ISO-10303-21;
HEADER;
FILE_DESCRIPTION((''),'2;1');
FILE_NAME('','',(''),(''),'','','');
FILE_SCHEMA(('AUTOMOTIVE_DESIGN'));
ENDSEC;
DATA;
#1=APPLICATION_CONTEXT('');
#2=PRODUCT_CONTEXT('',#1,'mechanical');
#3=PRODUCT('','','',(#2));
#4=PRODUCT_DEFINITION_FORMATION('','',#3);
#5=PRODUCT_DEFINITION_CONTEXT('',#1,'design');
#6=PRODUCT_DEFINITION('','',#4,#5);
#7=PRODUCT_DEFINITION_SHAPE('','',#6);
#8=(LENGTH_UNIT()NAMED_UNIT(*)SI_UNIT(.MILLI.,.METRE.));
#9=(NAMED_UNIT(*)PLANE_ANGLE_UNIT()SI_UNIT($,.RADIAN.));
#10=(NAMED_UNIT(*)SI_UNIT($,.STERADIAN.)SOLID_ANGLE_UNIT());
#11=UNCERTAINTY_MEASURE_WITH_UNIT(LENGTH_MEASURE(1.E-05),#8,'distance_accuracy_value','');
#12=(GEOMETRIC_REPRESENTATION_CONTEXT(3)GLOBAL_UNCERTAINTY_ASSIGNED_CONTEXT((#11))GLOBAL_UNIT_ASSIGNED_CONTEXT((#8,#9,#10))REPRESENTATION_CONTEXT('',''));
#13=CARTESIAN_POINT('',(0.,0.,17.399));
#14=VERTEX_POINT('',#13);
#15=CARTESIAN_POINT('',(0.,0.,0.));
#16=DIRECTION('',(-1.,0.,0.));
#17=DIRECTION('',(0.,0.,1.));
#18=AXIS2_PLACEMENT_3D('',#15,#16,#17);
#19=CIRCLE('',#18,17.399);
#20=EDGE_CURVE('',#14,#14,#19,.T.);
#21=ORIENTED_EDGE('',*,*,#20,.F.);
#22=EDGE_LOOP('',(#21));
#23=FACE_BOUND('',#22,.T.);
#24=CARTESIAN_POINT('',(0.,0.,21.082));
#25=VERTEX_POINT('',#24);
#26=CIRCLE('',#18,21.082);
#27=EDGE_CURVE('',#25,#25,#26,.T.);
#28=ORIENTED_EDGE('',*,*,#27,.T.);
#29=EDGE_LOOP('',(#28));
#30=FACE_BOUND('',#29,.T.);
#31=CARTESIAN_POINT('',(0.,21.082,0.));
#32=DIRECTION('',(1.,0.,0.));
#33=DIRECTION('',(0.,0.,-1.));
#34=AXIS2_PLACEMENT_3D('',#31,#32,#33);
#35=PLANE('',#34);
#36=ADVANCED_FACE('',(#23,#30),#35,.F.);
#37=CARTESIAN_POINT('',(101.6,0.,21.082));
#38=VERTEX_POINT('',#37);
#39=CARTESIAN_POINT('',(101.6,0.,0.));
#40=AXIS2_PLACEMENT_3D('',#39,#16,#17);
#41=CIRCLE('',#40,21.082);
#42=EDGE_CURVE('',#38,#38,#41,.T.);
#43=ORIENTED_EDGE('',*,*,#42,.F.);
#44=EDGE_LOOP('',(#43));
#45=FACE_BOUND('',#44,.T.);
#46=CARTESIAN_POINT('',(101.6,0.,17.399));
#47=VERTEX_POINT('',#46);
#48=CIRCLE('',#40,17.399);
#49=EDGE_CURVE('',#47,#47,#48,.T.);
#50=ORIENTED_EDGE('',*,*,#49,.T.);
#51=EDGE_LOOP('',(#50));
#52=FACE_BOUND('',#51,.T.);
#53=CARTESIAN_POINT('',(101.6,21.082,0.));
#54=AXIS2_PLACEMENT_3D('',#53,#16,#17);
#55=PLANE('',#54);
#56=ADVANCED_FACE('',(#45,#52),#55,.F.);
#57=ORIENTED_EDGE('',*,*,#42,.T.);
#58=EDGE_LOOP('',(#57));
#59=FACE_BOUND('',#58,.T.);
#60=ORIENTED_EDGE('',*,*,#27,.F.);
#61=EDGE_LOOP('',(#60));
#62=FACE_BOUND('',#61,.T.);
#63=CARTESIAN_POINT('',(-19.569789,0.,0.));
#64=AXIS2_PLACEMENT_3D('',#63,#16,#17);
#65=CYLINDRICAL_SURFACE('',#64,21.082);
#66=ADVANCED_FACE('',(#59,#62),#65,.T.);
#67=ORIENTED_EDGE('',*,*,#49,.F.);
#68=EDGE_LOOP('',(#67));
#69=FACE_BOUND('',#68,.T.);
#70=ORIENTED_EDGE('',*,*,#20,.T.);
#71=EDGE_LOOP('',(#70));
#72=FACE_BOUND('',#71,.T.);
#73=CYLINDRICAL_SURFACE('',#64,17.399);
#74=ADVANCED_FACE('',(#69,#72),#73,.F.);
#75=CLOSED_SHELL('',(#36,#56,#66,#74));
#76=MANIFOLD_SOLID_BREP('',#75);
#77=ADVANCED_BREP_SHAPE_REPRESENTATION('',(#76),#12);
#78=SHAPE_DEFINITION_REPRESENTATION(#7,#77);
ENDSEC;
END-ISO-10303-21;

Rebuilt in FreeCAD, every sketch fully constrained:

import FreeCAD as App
import Part
import Sketcher
from FreeCAD import Vector
Q = App.Units.Quantity

doc = App.newDocument("Part")
body = doc.addObject("PartDesign::Body", "Body")

# Sketch on XY plane
sketch1 = body.newObject("Sketcher::SketchObject", "Sketch")
sketch1.AttachmentSupport = (doc.getObject("XY_Plane"), [""])
sketch1.MapMode = "FlatFace"
sketch1.addGeometry([
    Part.LineSegment(Vector(0, 21.082, 0), Vector(0, 17.399, 0)),
    Part.LineSegment(Vector(0, 17.399, 0), Vector(101.6, 17.399, 0)),
    Part.LineSegment(Vector(101.6, 17.399, 0), Vector(101.6, 21.082, 0)),
    Part.LineSegment(Vector(101.6, 21.082, 0), Vector(0, 21.082, 0)),
], False)
sketch1.addConstraint([
    Sketcher.Constraint("Coincident", 0, 2, 1, 1),
    Sketcher.Constraint("Coincident", 1, 2, 2, 1),
    Sketcher.Constraint("Coincident", 2, 2, 3, 1),
    Sketcher.Constraint("Coincident", 3, 2, 0, 1),
    Sketcher.Constraint("Vertical", 0),
    Sketcher.Constraint("Horizontal", 1),
    Sketcher.Constraint("Vertical", 2),
    Sketcher.Constraint("Horizontal", 3),
    Sketcher.Constraint("PointOnObject", 0, 2, -2),
    Sketcher.Constraint("DistanceX", 1, 1, 1, 2, Q("4 in")),
    Sketcher.Constraint("DistanceY", 0, 2, 0, 1, Q("0.145 in")),
    Sketcher.Constraint("DistanceY", -1, 1, 2, 2, Q("0.83 in")),
])
revolution = body.newObject("PartDesign::Revolution", "Revolution")
revolution.Profile = sketch1
revolution.ReferenceAxis = (sketch1, ["H_Axis"])
revolution.Angle = 360

doc.recompute()
